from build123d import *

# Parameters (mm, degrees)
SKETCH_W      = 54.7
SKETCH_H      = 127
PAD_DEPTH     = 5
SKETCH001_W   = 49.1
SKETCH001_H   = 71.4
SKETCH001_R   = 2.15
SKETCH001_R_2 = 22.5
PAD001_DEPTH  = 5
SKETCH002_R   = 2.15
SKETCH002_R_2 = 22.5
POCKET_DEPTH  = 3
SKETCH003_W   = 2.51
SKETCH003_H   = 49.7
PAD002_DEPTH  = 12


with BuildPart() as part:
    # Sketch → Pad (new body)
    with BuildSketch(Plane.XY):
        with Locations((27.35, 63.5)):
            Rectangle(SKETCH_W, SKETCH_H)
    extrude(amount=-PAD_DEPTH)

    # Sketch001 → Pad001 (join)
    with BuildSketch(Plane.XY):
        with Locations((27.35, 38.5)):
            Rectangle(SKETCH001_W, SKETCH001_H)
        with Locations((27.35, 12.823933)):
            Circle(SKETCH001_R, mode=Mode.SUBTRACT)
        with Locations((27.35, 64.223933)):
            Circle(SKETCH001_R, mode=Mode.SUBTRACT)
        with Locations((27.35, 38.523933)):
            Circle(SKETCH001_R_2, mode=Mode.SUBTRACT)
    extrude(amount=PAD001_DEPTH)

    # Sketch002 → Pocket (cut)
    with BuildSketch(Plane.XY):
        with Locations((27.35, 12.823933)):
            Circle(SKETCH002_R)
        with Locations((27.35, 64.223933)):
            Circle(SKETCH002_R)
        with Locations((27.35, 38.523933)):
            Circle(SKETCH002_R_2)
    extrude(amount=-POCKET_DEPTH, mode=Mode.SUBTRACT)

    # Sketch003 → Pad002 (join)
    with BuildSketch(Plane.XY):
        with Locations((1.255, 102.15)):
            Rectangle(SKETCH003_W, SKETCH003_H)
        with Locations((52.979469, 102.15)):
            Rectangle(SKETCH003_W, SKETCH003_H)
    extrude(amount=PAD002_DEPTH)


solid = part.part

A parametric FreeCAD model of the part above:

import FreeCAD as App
import Part
import Sketcher
Q = App.Units.Quantity

doc = App.newDocument("Part")
body = doc.addObject("PartDesign::Body", "Body")

# Sketch on XY plane
sketch1 = doc.addObject("Sketcher::SketchObject", "Sketch")
body.addObject(sketch1)
sketch1.AttachmentSupport = (doc.XY_Plane, [""])
sketch1.MapMode = "FlatFace"
sketch1.addGeometry([
    Part.LineSegment(App.Vector(0, 127, 0), App.Vector(0, 0, 0)),
    Part.LineSegment(App.Vector(0, 0, 0), App.Vector(55, 0, 0)),
    Part.LineSegment(App.Vector(55, 0, 0), App.Vector(55, 127, 0)),
    Part.LineSegment(App.Vector(55, 127, 0), App.Vector(0, 127, 0)),
], False)
sketch1.addConstraint([
    Sketcher.Constraint("Coincident", 0, 2, 1, 1),
    Sketcher.Constraint("Coincident", 1, 2, 2, 1),
    Sketcher.Constraint("Coincident", 2, 2, 3, 1),
    Sketcher.Constraint("Coincident", 3, 2, 0, 1),
    Sketcher.Constraint("Vertical", 0),
    Sketcher.Constraint("Horizontal", 1),
    Sketcher.Constraint("Vertical", 2),
    Sketcher.Constraint("Horizontal", 3),
    Sketcher.Constraint("Coincident", 0, 2, -1, 1),
    Sketcher.Constraint("DistanceY", 0, 2, 0, 1, Q("127 mm")),
    Sketcher.Constraint("DistanceX", 1, 1, 1, 2, Q("54.7 mm")),
])
pad1 = doc.addObject("PartDesign::Pad", "Pad")
body.addObject(pad1)
pad1.Profile = sketch1
pad1.Length = 5
pad1.Reversed = True

# Sketch on XY plane
sketch2 = doc.addObject("Sketcher::SketchObject", "Sketch001")
body.addObject(sketch2)
sketch2.AttachmentSupport = (doc.XY_Plane, [""])
sketch2.MapMode = "FlatFace"
sketch2.addGeometry([
    Part.LineSegment(App.Vector(2.8, 74.2, 0), App.Vector(2.8, 2.8, 0)),  # 0
    Part.LineSegment(App.Vector(2.8, 2.8, 0), App.Vector(51.9, 2.8, 0)),  # 1
    Part.LineSegment(App.Vector(51.9, 2.8, 0), App.Vector(51.9, 74.2, 0)),  # 2
    Part.LineSegment(App.Vector(51.9, 74.2, 0), App.Vector(2.8, 74.2, 0)),  # 3
    Part.Circle(App.Vector(27.4, 12.8, 0), App.Vector(0, 0, 1), 2.1),  # 4
    Part.Circle(App.Vector(27.4, 38.5, 0), App.Vector(0, 0, 1), 22.5),  # 5
    Part.Circle(App.Vector(27.4, 64.2, 0), App.Vector(0, 0, 1), 2.1),  # 6
], False)
sketch2.addConstraint([
    Sketcher.Constraint("Coincident", 0, 2, 1, 1),
    Sketcher.Constraint("Coincident", 1, 2, 2, 1),
    Sketcher.Constraint("Coincident", 2, 2, 3, 1),
    Sketcher.Constraint("Coincident", 3, 2, 0, 1),
    Sketcher.Constraint("Vertical", 0),
    Sketcher.Constraint("Horizontal", 1),
    Sketcher.Constraint("Vertical", 2),
    Sketcher.Constraint("Horizontal", 3),
    Sketcher.Constraint("Equal", 4, 6),
    Sketcher.Constraint("Vertical", 4, 3, 5, 3),
    Sketcher.Constraint("Vertical", 5, 3, 6, 3),
    Sketcher.Constraint("Diameter", 5, Q("45 mm")),
    Sketcher.Constraint("Diameter", 4, Q("4.3 mm")),
    Sketcher.Constraint("DistanceX", 1, 1, 1, 2, Q("49.1 mm")),
    Sketcher.Constraint("DistanceY", 0, 2, 0, 1, Q("71.4 mm")),
    Sketcher.Constraint("DistanceX", -1, 1, 0, 2, Q("2.8 mm")),
    Sketcher.Constraint("DistanceY", -1, 1, 0, 2, Q("2.8 mm")),
    Sketcher.Constraint("DistanceY", 4, 3, 5, 3, Q("25.7 mm")),
    Sketcher.Constraint("DistanceY", 5, 3, 6, 3, Q("25.7 mm")),
    Sketcher.Constraint("DistanceX", -1, 1, 4, 3, Q("27.35 mm")),
    Sketcher.Constraint("DistanceY", -1, 1, 4, 3, Q("12.823933 mm")),
])
pad2 = doc.addObject("PartDesign::Pad", "Pad001")
body.addObject(pad2)
pad2.Profile = sketch2
pad2.Length = 5

# Sketch on XY plane
sketch3 = doc.addObject("Sketcher::SketchObject", "Sketch002")
body.addObject(sketch3)
sketch3.AttachmentSupport = (doc.XY_Plane, [""])
sketch3.MapMode = "FlatFace"
sketch3.addGeometry([
    Part.Circle(App.Vector(27.4, 12.8, 0), App.Vector(0, 0, 1), 2.1),
    Part.Circle(App.Vector(27.4, 64.2, 0), App.Vector(0, 0, 1), 2.1),
    Part.Circle(App.Vector(27.4, 38.5, 0), App.Vector(0, 0, 1), 22.5),
], False)
sketch3.addConstraint([
    Sketcher.Constraint("Equal", 0, 1),
    Sketcher.Constraint("Vertical", 0, 3, 1, 3),
    Sketcher.Constraint("Vertical", 1, 3, 2, 3),
    Sketcher.Constraint("Diameter", 2, Q("45 mm")),
    Sketcher.Constraint("Diameter", 0, Q("4.3 mm")),
    Sketcher.Constraint("DistanceY", 0, 3, 1, 3, Q("51.4 mm")),
    Sketcher.Constraint("DistanceY", 0, 3, 2, 3, Q("25.7 mm")),
    Sketcher.Constraint("DistanceX", -1, 1, 0, 3, Q("27.35 mm")),
    Sketcher.Constraint("DistanceY", -1, 1, 0, 3, Q("12.823933 mm")),
])
pocket1 = doc.addObject("PartDesign::Pocket", "Pocket")
body.addObject(pocket1)
pocket1.Profile = sketch3
pocket1.Length = 3

# Sketch on XY plane
sketch4 = doc.addObject("Sketcher::SketchObject", "Sketch003")
body.addObject(sketch4)
sketch4.AttachmentSupport = (doc.XY_Plane, [""])
sketch4.MapMode = "FlatFace"
sketch4.addGeometry([
    Part.LineSegment(App.Vector(0, 127, 0), App.Vector(0, 77.3, 0)),  # 0
    Part.LineSegment(App.Vector(0, 77.3, 0), App.Vector(2.5, 77.3, 0)),  # 1
    Part.LineSegment(App.Vector(2.5, 77.3, 0), App.Vector(2.5, 127, 0)),  # 2
    Part.LineSegment(App.Vector(2.5, 127, 0), App.Vector(0, 127, 0)),  # 3
    Part.LineSegment(App.Vector(51.7, 127, 0), App.Vector(51.7, 77.3, 0)),  # 4
    Part.LineSegment(App.Vector(51.7, 77.3, 0), App.Vector(54.2, 77.3, 0)),  # 5
    Part.LineSegment(App.Vector(54.2, 77.3, 0), App.Vector(54.2, 127, 0)),  # 6
    Part.LineSegment(App.Vector(54.2, 127, 0), App.Vector(51.7, 127, 0)),  # 7
], False)
sketch4.addConstraint([
    Sketcher.Constraint("Coincident", 0, 2, 1, 1),
    Sketcher.Constraint("Coincident", 1, 2, 2, 1),
    Sketcher.Constraint("Coincident", 2, 2, 3, 1),
    Sketcher.Constraint("Coincident", 3, 2, 0, 1),
    Sketcher.Constraint("Coincident", 4, 2, 5, 1),
    Sketcher.Constraint("Coincident", 5, 2, 6, 1),
    Sketcher.Constraint("Coincident", 6, 2, 7, 1),
    Sketcher.Constraint("Coincident", 7, 2, 4, 1),
    Sketcher.Constraint("Vertical", 0),
    Sketcher.Constraint("Horizontal", 1),
    Sketcher.Constraint("Vertical", 2),
    Sketcher.Constraint("Horizontal", 3),
    Sketcher.Constraint("Vertical", 4),
    Sketcher.Constraint("Horizontal", 5),
    Sketcher.Constraint("Vertical", 6),
    Sketcher.Constraint("Horizontal", 7),
    Sketcher.Constraint("PointOnObject", 0, 2, -2),
    Sketcher.Constraint("Horizontal", 1, 2, 4, 2),
    Sketcher.Constraint("Horizontal", 3, 2, 6, 2),
    Sketcher.Constraint("Equal", 3, 5),
    Sketcher.Constraint("DistanceY", 0, 2, 0, 1, Q("49.7 mm")),
    Sketcher.Constraint("DistanceY", -1, 1, 2, 2, Q("127 mm")),
    Sketcher.Constraint("DistanceX", 1, 1, 1, 2, Q("2.51 mm")),
    Sketcher.Constraint("DistanceX", -1, 1, 4, 2, Q("51.724469 mm")),
])
pad3 = doc.addObject("PartDesign::Pad", "Pad002")
body.addObject(pad3)
pad3.Profile = sketch4
pad3.Length = 12

doc.recompute()
